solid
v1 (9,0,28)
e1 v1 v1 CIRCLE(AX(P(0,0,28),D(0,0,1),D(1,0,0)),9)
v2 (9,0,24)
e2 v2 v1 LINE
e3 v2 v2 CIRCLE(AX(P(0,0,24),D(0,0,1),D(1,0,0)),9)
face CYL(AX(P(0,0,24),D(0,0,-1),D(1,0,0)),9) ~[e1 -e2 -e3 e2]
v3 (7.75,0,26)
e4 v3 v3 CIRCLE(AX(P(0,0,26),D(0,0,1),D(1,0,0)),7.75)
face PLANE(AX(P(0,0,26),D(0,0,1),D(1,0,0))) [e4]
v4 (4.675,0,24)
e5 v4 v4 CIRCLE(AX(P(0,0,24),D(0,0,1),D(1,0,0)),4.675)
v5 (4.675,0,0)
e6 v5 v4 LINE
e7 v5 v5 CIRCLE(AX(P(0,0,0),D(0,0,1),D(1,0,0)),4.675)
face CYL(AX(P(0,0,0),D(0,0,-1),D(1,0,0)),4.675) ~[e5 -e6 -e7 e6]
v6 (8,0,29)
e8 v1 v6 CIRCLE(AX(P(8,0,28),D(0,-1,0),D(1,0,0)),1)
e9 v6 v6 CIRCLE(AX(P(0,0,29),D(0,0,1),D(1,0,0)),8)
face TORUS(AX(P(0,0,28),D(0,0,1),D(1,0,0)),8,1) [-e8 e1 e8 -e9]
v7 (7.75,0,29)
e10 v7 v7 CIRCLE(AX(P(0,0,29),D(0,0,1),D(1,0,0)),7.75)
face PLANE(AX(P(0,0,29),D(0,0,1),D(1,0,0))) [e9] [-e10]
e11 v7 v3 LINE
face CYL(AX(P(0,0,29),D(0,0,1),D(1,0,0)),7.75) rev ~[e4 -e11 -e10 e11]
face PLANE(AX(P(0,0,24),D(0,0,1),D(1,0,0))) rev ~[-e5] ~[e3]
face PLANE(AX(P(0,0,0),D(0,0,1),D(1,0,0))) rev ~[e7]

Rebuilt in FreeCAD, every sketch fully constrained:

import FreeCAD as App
import Part
import Sketcher
from FreeCAD import Vector


def edges_at(feature, points):
    """Names of the edges that pass closest to the given points."""
    edges = feature.Shape.Edges
    near = lambda p: min(range(len(edges)), key=lambda i: edges[i].distToShape(Part.Vertex(*p))[0])
    return sorted({f"Edge{near(p) + 1}" for p in points})

doc = App.newDocument("Part")
body = doc.addObject("PartDesign::Body", "Body")

# Sketch on XY plane
sketch1 = body.newObject("Sketcher::SketchObject", "Sketch")
sketch1.AttachmentSupport = (doc.getObject("XY_Plane"), [""])
sketch1.MapMode = "FlatFace"
sketch1.addGeometry(Part.Circle(Vector(0, 0, 0), Vector(0, 0, 1), 4.7), False)
sketch1.addConstraint([
    Sketcher.Constraint("Coincident", 0, 3, -1, 1),
    Sketcher.Constraint("Diameter", 0, 9.35),
])
pad1 = body.newObject("PartDesign::Pad", "Pad")
pad1.Profile = sketch1
pad1.Length = 24

# Sketch on XY plane
sketch2 = body.newObject("Sketcher::SketchObject", "Sketch001")
sketch2.AttachmentSupport = (doc.getObject("XY_Plane"), [""])
sketch2.MapMode = "FlatFace"
sketch2.AttachmentOffset = App.Placement(Vector(0, 0, 24), App.Rotation())
sketch2.addGeometry(Part.Circle(Vector(0, 0, 0), Vector(0, 0, 1), 9), False)
sketch2.addConstraint([
    Sketcher.Constraint("Coincident", 0, 3, -1, 1),
    Sketcher.Constraint("Diameter", 0, 18.0),
])
pad2 = body.newObject("PartDesign::Pad", "Pad001")
pad2.Profile = sketch2
pad2.Length = 5

# Sketch on XY plane
sketch3 = body.newObject("Sketcher::SketchObject", "Sketch002")
sketch3.AttachmentSupport = (doc.getObject("XY_Plane"), [""])
sketch3.MapMode = "FlatFace"
sketch3.AttachmentOffset = App.Placement(Vector(0, 0, 29), App.Rotation())
sketch3.addGeometry(Part.Circle(Vector(0, 0, 0), Vector(0, 0, 1), 8), False)
sketch3.addConstraint([
    Sketcher.Constraint("Coincident", 0, 3, -1, 1),
    Sketcher.Constraint("Diameter", 0, 15.5),
])
pocket1 = body.newObject("PartDesign::Pocket", "Pocket")
pocket1.Profile = sketch3
pocket1.Length = 3
doc.recompute()

fillet = body.newObject("PartDesign::Fillet", "Fillet")
fillet.Base = (pocket1, edges_at(pocket1, [(-9, 0, 29)]))
fillet.Radius = 1

doc.recompute()
